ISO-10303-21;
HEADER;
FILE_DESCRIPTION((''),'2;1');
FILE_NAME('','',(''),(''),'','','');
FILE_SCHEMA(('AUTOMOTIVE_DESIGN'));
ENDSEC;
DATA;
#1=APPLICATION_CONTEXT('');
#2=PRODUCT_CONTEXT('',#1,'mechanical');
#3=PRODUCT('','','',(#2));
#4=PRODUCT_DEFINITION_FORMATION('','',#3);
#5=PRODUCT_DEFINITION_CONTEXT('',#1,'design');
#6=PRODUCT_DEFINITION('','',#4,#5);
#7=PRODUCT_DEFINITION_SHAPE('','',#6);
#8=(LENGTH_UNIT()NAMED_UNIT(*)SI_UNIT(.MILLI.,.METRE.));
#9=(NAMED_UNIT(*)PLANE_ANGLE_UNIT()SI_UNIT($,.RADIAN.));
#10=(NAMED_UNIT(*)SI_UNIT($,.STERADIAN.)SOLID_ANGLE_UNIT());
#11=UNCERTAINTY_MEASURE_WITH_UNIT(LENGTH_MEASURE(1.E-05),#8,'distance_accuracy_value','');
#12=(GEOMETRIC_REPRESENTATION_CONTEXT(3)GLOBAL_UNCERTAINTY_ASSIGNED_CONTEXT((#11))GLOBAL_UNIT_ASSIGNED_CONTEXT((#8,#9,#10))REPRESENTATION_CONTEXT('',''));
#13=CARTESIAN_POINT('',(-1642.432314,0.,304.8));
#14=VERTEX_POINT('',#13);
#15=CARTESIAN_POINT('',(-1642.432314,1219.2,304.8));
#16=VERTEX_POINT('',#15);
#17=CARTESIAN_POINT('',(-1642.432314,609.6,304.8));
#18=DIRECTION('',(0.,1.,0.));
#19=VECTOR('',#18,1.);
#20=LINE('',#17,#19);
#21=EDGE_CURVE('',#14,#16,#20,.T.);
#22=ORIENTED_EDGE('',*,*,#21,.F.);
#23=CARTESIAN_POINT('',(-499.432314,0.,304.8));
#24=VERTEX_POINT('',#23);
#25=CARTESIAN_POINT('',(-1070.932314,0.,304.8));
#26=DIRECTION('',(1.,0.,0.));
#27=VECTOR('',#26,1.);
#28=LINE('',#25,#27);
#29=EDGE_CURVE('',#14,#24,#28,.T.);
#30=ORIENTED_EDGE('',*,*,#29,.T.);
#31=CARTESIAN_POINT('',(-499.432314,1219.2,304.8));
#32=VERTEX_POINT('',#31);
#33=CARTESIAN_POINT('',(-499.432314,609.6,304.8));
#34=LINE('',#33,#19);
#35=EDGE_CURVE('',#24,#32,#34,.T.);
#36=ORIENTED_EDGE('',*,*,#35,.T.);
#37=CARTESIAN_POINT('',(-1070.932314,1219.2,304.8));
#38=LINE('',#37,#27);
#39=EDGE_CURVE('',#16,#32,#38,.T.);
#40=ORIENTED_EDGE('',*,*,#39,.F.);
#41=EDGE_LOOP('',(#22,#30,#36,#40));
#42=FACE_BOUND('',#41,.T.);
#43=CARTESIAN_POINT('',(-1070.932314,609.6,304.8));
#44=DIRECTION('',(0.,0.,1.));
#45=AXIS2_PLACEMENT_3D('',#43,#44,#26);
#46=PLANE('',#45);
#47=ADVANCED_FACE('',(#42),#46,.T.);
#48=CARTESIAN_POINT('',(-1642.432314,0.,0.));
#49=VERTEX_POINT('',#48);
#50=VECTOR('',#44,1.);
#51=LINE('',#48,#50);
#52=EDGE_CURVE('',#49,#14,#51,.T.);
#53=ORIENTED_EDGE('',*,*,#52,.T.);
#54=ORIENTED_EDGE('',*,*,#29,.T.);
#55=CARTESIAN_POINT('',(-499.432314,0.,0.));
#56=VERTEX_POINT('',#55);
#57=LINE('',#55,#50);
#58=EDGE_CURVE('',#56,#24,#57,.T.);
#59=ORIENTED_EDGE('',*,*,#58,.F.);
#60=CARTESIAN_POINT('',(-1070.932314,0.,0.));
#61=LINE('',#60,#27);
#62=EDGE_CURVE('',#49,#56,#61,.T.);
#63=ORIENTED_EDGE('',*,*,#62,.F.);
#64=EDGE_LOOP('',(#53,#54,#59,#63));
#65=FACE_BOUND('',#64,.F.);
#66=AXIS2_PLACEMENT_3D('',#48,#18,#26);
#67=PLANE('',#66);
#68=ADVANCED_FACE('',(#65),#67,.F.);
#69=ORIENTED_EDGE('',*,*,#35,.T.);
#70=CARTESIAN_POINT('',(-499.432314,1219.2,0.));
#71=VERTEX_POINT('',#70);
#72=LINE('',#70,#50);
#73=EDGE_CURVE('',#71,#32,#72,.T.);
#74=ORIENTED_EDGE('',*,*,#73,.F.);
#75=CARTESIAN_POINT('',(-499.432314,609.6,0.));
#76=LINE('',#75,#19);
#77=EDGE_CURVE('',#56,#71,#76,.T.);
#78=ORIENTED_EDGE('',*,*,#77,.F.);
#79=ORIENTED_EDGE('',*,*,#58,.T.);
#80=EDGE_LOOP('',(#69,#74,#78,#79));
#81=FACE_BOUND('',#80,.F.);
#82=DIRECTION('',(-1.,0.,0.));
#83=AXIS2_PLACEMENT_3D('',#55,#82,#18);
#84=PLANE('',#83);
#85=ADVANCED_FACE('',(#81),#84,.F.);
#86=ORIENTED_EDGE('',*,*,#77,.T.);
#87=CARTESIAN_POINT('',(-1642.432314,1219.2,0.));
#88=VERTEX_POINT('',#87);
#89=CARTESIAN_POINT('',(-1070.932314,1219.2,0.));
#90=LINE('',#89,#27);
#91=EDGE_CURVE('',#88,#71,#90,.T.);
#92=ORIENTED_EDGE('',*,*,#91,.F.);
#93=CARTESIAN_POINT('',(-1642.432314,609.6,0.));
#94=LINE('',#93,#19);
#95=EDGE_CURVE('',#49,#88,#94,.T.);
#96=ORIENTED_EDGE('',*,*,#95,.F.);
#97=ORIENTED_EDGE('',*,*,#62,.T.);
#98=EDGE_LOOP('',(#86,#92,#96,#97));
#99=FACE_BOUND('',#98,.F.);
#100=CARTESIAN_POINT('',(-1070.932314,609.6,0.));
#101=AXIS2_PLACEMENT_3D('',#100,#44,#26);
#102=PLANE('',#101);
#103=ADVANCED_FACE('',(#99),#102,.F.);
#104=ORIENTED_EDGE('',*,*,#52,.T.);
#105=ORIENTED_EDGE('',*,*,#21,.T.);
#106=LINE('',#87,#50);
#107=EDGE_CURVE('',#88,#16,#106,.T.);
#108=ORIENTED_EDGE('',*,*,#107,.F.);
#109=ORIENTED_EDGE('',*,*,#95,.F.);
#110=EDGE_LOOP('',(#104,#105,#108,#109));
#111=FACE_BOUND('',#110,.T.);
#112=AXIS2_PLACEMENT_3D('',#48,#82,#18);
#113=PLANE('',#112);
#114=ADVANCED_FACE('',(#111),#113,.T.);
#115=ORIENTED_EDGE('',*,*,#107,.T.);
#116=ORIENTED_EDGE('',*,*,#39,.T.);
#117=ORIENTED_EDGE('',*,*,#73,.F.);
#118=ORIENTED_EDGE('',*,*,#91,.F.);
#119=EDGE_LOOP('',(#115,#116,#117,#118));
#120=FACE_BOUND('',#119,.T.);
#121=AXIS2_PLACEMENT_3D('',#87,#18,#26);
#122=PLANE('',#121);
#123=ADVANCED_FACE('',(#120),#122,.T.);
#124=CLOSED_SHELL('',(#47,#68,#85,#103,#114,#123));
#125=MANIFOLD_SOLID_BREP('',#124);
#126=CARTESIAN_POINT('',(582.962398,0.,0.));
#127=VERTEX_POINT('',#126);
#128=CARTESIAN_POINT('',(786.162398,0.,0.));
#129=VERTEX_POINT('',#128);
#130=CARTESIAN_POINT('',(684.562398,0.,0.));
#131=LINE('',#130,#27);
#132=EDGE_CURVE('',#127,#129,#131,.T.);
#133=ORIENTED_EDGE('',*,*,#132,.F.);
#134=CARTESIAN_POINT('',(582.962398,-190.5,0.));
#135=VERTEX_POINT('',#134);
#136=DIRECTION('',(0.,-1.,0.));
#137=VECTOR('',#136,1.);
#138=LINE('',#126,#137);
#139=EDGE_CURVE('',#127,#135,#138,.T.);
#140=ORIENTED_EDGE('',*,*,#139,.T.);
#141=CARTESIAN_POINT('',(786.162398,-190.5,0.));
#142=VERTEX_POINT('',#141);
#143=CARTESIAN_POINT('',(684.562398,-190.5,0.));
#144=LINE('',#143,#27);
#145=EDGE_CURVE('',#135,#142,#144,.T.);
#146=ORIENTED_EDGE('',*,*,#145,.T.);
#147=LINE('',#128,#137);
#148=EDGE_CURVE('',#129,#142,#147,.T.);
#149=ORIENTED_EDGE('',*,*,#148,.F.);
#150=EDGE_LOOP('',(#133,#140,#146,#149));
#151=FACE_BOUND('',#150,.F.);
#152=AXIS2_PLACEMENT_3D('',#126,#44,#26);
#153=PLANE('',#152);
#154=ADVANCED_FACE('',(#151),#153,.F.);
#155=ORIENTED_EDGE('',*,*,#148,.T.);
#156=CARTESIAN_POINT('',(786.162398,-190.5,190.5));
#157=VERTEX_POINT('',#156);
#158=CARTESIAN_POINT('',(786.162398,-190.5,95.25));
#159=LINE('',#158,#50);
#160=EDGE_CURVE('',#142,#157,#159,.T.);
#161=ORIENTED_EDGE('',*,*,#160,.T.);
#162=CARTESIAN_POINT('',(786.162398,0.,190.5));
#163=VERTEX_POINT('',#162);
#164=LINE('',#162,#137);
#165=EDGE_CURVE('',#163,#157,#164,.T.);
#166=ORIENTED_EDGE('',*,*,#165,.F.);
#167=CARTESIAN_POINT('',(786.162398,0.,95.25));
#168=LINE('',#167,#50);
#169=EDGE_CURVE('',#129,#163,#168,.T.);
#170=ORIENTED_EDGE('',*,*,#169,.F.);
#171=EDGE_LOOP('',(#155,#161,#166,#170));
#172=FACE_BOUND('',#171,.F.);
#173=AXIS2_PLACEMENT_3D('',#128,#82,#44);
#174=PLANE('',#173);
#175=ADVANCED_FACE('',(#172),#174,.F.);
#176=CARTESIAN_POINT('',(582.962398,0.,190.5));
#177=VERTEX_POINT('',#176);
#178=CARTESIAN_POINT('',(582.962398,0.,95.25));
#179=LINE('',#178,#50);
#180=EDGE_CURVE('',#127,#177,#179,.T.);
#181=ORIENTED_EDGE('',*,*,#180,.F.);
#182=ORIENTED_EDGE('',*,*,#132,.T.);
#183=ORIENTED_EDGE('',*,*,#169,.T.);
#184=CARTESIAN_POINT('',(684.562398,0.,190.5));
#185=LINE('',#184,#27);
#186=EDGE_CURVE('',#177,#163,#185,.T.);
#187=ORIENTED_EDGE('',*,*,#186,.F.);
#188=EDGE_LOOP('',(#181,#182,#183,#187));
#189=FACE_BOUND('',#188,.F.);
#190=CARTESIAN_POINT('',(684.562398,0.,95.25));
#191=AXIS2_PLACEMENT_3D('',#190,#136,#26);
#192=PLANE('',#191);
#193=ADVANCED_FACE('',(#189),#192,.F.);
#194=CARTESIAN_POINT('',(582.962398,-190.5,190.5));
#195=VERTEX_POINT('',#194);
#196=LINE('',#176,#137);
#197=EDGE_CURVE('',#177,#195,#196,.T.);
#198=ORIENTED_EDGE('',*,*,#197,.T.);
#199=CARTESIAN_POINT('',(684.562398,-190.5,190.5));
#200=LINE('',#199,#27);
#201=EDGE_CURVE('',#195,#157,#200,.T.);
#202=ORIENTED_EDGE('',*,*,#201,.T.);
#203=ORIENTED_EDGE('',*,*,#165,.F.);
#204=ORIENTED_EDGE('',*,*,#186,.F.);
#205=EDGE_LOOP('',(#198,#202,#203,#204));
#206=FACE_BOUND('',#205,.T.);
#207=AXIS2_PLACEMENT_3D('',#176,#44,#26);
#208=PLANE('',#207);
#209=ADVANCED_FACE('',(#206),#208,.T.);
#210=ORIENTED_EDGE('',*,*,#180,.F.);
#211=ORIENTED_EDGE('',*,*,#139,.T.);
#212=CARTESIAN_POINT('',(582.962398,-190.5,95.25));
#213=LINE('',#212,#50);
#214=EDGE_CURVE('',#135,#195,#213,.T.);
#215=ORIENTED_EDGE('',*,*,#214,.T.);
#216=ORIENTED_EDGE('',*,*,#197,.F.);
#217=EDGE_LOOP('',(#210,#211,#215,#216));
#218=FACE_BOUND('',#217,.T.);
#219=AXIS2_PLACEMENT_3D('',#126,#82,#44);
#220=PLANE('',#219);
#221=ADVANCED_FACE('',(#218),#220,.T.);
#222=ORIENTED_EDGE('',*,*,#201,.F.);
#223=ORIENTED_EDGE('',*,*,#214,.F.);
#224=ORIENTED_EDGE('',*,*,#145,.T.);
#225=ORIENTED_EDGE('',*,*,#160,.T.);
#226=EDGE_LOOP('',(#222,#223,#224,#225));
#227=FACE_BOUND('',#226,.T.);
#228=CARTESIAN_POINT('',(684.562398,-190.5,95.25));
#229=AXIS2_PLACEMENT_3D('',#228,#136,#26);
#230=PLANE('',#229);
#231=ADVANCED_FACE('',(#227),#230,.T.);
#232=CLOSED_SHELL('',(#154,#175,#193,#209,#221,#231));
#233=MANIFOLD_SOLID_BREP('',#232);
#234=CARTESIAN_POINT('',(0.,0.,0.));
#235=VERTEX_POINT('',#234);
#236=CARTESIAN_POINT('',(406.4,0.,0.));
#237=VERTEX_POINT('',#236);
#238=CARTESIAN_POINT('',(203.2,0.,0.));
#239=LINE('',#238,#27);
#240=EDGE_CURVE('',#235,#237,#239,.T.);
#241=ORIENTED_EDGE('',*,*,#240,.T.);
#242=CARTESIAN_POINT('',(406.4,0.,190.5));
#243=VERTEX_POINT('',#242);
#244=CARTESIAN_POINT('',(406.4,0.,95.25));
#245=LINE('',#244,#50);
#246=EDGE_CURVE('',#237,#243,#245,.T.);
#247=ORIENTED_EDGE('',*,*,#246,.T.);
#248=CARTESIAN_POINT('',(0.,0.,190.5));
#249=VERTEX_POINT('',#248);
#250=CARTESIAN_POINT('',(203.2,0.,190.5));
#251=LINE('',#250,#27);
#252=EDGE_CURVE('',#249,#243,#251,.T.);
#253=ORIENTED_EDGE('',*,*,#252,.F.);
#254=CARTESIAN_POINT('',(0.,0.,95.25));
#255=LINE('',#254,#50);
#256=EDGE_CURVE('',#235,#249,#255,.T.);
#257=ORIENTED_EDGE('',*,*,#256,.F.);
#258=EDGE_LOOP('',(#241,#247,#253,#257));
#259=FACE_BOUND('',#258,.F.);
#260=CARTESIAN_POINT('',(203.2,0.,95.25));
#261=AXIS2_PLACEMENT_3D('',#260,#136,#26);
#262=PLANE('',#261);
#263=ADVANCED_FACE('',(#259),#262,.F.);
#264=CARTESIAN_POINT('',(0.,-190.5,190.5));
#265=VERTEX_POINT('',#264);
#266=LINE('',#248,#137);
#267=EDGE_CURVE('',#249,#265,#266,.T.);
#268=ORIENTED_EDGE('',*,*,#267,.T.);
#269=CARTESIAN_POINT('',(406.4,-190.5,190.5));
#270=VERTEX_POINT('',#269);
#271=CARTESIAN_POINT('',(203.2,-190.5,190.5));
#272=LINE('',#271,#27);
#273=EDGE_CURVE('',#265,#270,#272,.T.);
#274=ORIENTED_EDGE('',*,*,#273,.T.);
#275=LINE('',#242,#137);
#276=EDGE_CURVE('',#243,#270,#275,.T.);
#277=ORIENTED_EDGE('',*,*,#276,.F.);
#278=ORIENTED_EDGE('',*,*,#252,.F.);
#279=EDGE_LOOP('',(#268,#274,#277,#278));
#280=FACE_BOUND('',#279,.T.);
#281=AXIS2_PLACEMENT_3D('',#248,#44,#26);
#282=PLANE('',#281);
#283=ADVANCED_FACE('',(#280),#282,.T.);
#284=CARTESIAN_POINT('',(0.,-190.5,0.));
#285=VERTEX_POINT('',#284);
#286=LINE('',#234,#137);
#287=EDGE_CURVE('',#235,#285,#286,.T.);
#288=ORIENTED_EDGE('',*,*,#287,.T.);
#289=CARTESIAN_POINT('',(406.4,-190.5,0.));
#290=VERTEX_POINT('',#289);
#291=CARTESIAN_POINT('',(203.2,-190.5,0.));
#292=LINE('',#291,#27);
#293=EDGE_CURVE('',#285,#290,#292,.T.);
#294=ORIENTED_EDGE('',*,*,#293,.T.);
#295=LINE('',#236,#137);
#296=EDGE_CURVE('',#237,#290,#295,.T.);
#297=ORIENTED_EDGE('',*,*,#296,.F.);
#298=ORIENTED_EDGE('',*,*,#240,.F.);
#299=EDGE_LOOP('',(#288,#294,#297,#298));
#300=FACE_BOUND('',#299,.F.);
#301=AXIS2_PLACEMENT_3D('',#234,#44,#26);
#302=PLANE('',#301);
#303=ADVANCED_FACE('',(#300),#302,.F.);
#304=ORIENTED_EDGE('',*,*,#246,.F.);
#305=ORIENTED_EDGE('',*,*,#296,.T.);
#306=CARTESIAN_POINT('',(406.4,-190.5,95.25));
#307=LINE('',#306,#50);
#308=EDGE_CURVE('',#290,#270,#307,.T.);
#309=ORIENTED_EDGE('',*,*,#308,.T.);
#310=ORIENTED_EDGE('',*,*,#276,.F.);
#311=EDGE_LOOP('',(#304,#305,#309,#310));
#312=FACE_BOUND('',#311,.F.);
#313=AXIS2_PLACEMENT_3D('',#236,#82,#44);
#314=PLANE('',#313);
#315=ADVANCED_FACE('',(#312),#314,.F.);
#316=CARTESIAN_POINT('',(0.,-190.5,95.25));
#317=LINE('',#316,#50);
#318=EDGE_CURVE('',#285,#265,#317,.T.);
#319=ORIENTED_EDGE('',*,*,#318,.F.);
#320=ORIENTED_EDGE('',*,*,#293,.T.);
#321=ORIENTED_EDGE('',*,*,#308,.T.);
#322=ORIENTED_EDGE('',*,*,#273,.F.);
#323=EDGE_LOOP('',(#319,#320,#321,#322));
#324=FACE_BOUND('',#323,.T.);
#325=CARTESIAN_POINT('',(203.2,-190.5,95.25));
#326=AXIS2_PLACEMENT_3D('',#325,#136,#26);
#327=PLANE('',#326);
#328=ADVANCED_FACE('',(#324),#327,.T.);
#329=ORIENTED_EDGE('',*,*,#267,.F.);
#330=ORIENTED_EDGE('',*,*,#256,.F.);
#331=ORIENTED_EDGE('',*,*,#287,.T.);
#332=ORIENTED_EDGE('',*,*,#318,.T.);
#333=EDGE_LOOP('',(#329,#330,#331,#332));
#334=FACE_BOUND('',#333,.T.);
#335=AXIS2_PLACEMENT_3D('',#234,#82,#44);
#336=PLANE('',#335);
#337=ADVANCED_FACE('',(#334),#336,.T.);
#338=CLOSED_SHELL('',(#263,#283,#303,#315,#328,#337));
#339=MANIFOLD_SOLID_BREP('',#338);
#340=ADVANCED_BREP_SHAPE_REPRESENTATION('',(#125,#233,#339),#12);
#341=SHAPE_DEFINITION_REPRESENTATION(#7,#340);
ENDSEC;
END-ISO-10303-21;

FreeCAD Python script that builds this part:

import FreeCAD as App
import Part
import Sketcher
from FreeCAD import Vector
Q = App.Units.Quantity


def add_polygon(sketch, points):
    """Adds a closed chain of lines whose ends are joined by coincident constraints."""
    first, n = sketch.GeometryCount, len(points)
    for a, b in zip(points, points[1:] + points[:1]):
        sketch.addGeometry(Part.LineSegment(App.Vector(*a, 0), App.Vector(*b, 0)), False)
    for i in range(n):
        sketch.addConstraint(Sketcher.Constraint("Coincident", first + i, 2, first + (i + 1) % n, 1))

doc = App.newDocument("Part")
body = doc.addObject("PartDesign::Body", "Body")

sketch1 = doc.addObject("Sketcher::SketchObject", "Sketch")
body.addObject(sketch1)
sketch1.AttachmentSupport = (doc.XZ_Plane, [""])
sketch1.MapMode = "FlatFace"
add_polygon(sketch1, [(0, 190.5), (0, 0), (406.4, 0), (406.4, 190.5)])
sketch1.addConstraint([
    Sketcher.Constraint("Vertical", 0),
    Sketcher.Constraint("Horizontal", 1),
    Sketcher.Constraint("Vertical", 2),
    Sketcher.Constraint("Horizontal", 3),
    Sketcher.Constraint("Coincident", 0, 2, -1, 1),
    Sketcher.Constraint("DistanceX", 1, 1, 1, 2, Q("16 in")),
    Sketcher.Constraint("DistanceY", 0, 2, 0, 1, Q("7.5 in")),
])
pad1 = doc.addObject("PartDesign::Pad", "Pad")
body.addObject(pad1)
pad1.Profile = sketch1
pad1.Length = Q("7.5 in")
body2 = doc.addObject("PartDesign::Body", "Body001")

sketch2 = doc.addObject("Sketcher::SketchObject", "Sketch001")
body2.addObject(sketch2)
sketch2.AttachmentSupport = (doc.getObject("XZ_Plane001"), [""])
sketch2.MapMode = "FlatFace"
add_polygon(sketch2, [(582.962398, 190.5), (582.962398, 0), (786.162398, 0), (786.162398, 190.5)])
sketch2.addConstraint([
    Sketcher.Constraint("Vertical", 0),
    Sketcher.Constraint("Horizontal", 1),
    Sketcher.Constraint("Vertical", 2),
    Sketcher.Constraint("Horizontal", 3),
    Sketcher.Constraint("PointOnObject", 0, 2, -1),
    Sketcher.Constraint("DistanceX", 1, 1, 1, 2, Q("8 in")),
    Sketcher.Constraint("DistanceY", 0, 2, 0, 1, Q("7.5 in")),
    Sketcher.Constraint("DistanceX", -1, 1, 0, 2, Q("582.962398 mm")),
])
pad2 = doc.addObject("PartDesign::Pad", "Pad001")
body2.addObject(pad2)
pad2.Profile = sketch2
pad2.Length = Q("7.5 in")
body3 = doc.addObject("PartDesign::Body", "Body002")

sketch3 = doc.addObject("Sketcher::SketchObject", "Sketch002")
body3.addObject(sketch3)
sketch3.AttachmentSupport = (doc.getObject("XY_Plane002"), [""])
sketch3.MapMode = "FlatFace"
add_polygon(sketch3, [(-1642.432314, 1219.2), (-1642.432314, 0), (-499.432314, 0), (-499.432314, 1219.2)])
sketch3.addConstraint([
    Sketcher.Constraint("Vertical", 0),
    Sketcher.Constraint("Horizontal", 1),
    Sketcher.Constraint("Vertical", 2),
    Sketcher.Constraint("Horizontal", 3),
    Sketcher.Constraint("PointOnObject", 0, 2, -1),
    Sketcher.Constraint("DistanceX", 1, 1, 1, 2, Q("45 in")),
    Sketcher.Constraint("DistanceY", 0, 2, 0, 1, Q("48 in")),
    Sketcher.Constraint("DistanceX", 0, 2, -1, 1, Q("1642.432314 mm")),
])
pad3 = doc.addObject("PartDesign::Pad", "Pad002")
body3.addObject(pad3)
pad3.Profile = sketch3
pad3.Length = Q("12 in")

doc.recompute()
